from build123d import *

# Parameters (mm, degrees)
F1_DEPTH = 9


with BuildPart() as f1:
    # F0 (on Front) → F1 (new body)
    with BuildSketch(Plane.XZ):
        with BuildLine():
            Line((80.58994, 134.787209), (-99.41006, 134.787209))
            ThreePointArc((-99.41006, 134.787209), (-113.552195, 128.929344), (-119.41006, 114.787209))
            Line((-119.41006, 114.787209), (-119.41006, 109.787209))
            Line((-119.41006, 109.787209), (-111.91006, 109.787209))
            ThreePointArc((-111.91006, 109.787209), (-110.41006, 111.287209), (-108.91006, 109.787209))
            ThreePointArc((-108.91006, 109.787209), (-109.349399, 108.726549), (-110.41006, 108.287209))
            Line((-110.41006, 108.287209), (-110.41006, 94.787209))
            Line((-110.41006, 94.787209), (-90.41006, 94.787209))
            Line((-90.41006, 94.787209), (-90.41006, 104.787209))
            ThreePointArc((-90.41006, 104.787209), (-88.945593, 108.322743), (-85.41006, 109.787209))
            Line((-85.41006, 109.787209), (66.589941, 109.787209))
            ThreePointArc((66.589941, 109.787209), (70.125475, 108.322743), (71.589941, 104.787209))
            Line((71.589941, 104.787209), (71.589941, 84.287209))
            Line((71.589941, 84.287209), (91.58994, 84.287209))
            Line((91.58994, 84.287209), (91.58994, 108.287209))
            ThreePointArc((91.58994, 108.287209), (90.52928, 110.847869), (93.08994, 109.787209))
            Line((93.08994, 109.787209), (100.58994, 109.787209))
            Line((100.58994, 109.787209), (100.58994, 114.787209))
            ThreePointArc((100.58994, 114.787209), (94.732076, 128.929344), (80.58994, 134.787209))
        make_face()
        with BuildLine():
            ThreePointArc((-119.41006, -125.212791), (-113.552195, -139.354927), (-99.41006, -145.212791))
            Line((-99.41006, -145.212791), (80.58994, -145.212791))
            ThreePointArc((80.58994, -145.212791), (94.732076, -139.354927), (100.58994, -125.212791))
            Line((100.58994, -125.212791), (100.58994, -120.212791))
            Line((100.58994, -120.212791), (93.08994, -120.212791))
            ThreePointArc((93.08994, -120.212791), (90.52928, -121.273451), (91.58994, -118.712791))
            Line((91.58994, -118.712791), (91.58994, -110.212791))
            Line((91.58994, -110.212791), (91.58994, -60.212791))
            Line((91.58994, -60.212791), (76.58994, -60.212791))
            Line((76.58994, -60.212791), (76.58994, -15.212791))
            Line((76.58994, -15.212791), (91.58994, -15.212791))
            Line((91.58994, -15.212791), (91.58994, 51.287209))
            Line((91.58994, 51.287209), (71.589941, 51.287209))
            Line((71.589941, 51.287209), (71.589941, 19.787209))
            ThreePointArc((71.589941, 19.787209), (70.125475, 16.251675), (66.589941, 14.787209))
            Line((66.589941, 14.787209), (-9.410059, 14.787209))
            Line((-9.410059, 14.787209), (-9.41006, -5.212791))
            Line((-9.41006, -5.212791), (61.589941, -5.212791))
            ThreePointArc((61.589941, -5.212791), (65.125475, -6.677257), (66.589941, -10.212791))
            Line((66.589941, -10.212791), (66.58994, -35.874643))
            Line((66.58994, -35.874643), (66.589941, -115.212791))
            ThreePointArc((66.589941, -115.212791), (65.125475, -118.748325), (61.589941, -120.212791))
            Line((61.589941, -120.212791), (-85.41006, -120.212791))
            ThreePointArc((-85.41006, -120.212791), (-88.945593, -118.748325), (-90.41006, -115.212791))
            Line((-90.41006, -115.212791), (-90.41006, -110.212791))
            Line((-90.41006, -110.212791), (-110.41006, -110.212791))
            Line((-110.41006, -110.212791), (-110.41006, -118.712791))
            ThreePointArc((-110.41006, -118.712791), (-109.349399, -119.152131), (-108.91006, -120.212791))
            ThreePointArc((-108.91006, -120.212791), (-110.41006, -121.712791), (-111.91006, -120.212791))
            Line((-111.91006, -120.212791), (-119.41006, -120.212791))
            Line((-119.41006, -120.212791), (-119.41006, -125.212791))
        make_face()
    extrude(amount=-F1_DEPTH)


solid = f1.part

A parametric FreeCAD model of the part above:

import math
import FreeCAD as App
import Part
import Sketcher
Q = App.Units.Quantity

doc = App.newDocument("Part")
body = doc.addObject("PartDesign::Body", "Body")
body.AllowCompound = True

sketch1 = doc.addObject("Sketcher::SketchObject", "Sketch")
body.addObject(sketch1)
sketch1.AttachmentSupport = (doc.XZ_Plane, [""])
sketch1.MapMode = "FlatFace"
sketch1.addGeometry([
    Part.LineSegment(App.Vector(80.6, 134.8, 0), App.Vector(-99.4, 134.8, 0)),
    Part.ArcOfCircle(Part.Circle(App.Vector(-99.4, 114.8, 0), App.Vector(0, 0, 1), 20), math.radians(90), math.radians(180)),
    Part.LineSegment(App.Vector(-119.4, 114.8, 0), App.Vector(-119.4, 109.8, 0)),
    Part.LineSegment(App.Vector(-119.4, 109.8, 0), App.Vector(-111.9, 109.8, 0)),
    Part.ArcOfCircle(Part.Circle(App.Vector(-110.4, 109.8, 0), App.Vector(0, 0, 1), 1.5), math.radians(0), math.radians(180)),
    Part.ArcOfCircle(Part.Circle(App.Vector(-110.4, 109.8, 0), App.Vector(0, 0, 1), 1.5), math.radians(-90), math.radians(0)),
    Part.LineSegment(App.Vector(-110.4, 108.3, 0), App.Vector(-110.4, 94.8, 0)),
    Part.LineSegment(App.Vector(-110.4, 94.8, 0), App.Vector(-90.4, 94.8, 0)),
    Part.LineSegment(App.Vector(-90.4, 94.8, 0), App.Vector(-90.4, 104.8, 0)),
    Part.ArcOfCircle(Part.Circle(App.Vector(-85.4, 104.8, 0), App.Vector(0, 0, 1), 5), math.radians(90), math.radians(180)),
    Part.LineSegment(App.Vector(-85.4, 109.8, 0), App.Vector(66.6, 109.8, 0)),
    Part.ArcOfCircle(Part.Circle(App.Vector(66.6, 104.8, 0), App.Vector(0, 0, 1), 5), math.radians(0), math.radians(90)),
    Part.LineSegment(App.Vector(71.6, 104.8, 0), App.Vector(71.6, 84.3, 0)),
    Part.LineSegment(App.Vector(71.6, 84.3, 0), App.Vector(91.6, 84.3, 0)),
    Part.LineSegment(App.Vector(91.6, 84.3, 0), App.Vector(91.6, 108.3, 0)),
    Part.ArcOfCircle(Part.Circle(App.Vector(91.6, 109.8, 0), App.Vector(0, 0, 1), 1.5), math.radians(0), math.radians(270)),
    Part.LineSegment(App.Vector(93.1, 109.8, 0), App.Vector(100.6, 109.8, 0)),
    Part.LineSegment(App.Vector(100.6, 109.8, 0), App.Vector(100.6, 114.8, 0)),
    Part.ArcOfCircle(Part.Circle(App.Vector(80.6, 114.8, 0), App.Vector(0, 0, 1), 20), math.radians(0), math.radians(90)),
    Part.ArcOfCircle(Part.Circle(App.Vector(-99.4, -125.2, 0), App.Vector(0, 0, 1), 20), math.radians(-180), math.radians(-90)),
    Part.LineSegment(App.Vector(-99.4, -145.2, 0), App.Vector(80.6, -145.2, 0)),
    Part.ArcOfCircle(Part.Circle(App.Vector(80.6, -125.2, 0), App.Vector(0, 0, 1), 20), math.radians(-90), math.radians(0)),
    Part.LineSegment(App.Vector(100.6, -125.2, 0), App.Vector(100.6, -120.2, 0)),
    Part.LineSegment(App.Vector(100.6, -120.2, 0), App.Vector(93.1, -120.2, 0)),
    Part.ArcOfCircle(Part.Circle(App.Vector(91.6, -120.2, 0), App.Vector(0, 0, 1), 1.5), math.radians(90), math.radians(360)),
    Part.LineSegment(App.Vector(91.6, -118.7, 0), App.Vector(91.6, -60.2, 0)),
    Part.LineSegment(App.Vector(91.6, -60.2, 0), App.Vector(76.6, -60.2, 0)),
    Part.LineSegment(App.Vector(76.6, -60.2, 0), App.Vector(76.6, -15.2, 0)),
    Part.LineSegment(App.Vector(76.6, -15.2, 0), App.Vector(91.6, -15.2, 0)),
    Part.LineSegment(App.Vector(91.6, -15.2, 0), App.Vector(91.6, 51.3, 0)),
    Part.LineSegment(App.Vector(91.6, 51.3, 0), App.Vector(71.6, 51.3, 0)),
    Part.LineSegment(App.Vector(71.6, 51.3, 0), App.Vector(71.6, 19.8, 0)),
    Part.ArcOfCircle(Part.Circle(App.Vector(66.6, 19.8, 0), App.Vector(0, 0, 1), 5), math.radians(-90), math.radians(0)),
    Part.LineSegment(App.Vector(66.6, 14.8, 0), App.Vector(-9.4, 14.8, 0)),
    Part.LineSegment(App.Vector(-9.4, 14.8, 0), App.Vector(-9.4, -5.2, 0)),
    Part.LineSegment(App.Vector(-9.4, -5.2, 0), App.Vector(61.6, -5.2, 0)),
    Part.ArcOfCircle(Part.Circle(App.Vector(61.6, -10.2, 0), App.Vector(0, 0, 1), 5), math.radians(0), math.radians(90)),
    Part.LineSegment(App.Vector(66.6, -10.2, 0), App.Vector(66.6, -35.9, 0)),
    Part.LineSegment(App.Vector(66.6, -35.9, 0), App.Vector(66.6, -115.2, 0)),
    Part.ArcOfCircle(Part.Circle(App.Vector(61.6, -115.2, 0), App.Vector(0, 0, 1), 5), math.radians(-90), math.radians(0)),
    Part.LineSegment(App.Vector(61.6, -120.2, 0), App.Vector(-85.4, -120.2, 0)),
    Part.ArcOfCircle(Part.Circle(App.Vector(-85.4, -115.2, 0), App.Vector(0, 0, 1), 5), math.radians(-180), math.radians(-90)),
    Part.LineSegment(App.Vector(-90.4, -115.2, 0), App.Vector(-90.4, -110.2, 0)),
    Part.LineSegment(App.Vector(-90.4, -110.2, 0), App.Vector(-110.4, -110.2, 0)),
    Part.LineSegment(App.Vector(-110.4, -110.2, 0), App.Vector(-110.4, -118.7, 0)),
    Part.ArcOfCircle(Part.Circle(App.Vector(-110.4, -120.2, 0), App.Vector(0, 0, 1), 1.5), math.radians(0), math.radians(90)),
    Part.ArcOfCircle(Part.Circle(App.Vector(-110.4, -120.2, 0), App.Vector(0, 0, 1), 1.5), math.radians(180), math.radians(360)),
    Part.LineSegment(App.Vector(-111.9, -120.2, 0), App.Vector(-119.4, -120.2, 0)),
    Part.LineSegment(App.Vector(-119.4, -120.2, 0), App.Vector(-119.4, -125.2, 0)),
], False)
sketch1.addConstraint([
    Sketcher.Constraint("Tangent", 0, 2, 1, 1),
    Sketcher.Constraint("Tangent", 1, 2, 2, 1),
    Sketcher.Constraint("Coincident", 2, 2, 3, 1),
    Sketcher.Constraint("Coincident", 3, 2, 4, 2),
    Sketcher.Constraint("Tangent", 4, 1, 5, 2),
    Sketcher.Constraint("Coincident", 5, 1, 6, 1),
    Sketcher.Constraint("Coincident", 6, 2, 7, 1),
    Sketcher.Constraint("Coincident", 7, 2, 8, 1),
    Sketcher.Constraint("Tangent", 8, 2, 9, 2),
    Sketcher.Constraint("Tangent", 9, 1, 10, 1),
    Sketcher.Constraint("Tangent", 10, 2, 11, 2),
    Sketcher.Constraint("Tangent", 11, 1, 12, 1),
    Sketcher.Constraint("Coincident", 12, 2, 13, 1),
    Sketcher.Constraint("Coincident", 13, 2, 14, 1),
    Sketcher.Constraint("Coincident", 14, 2, 15, 2),
    Sketcher.Constraint("Coincident", 15, 1, 16, 1),
    Sketcher.Constraint("Coincident", 16, 2, 17, 1),
    Sketcher.Constraint("Tangent", 17, 2, 18, 1),
    Sketcher.Constraint("Tangent", 18, 2, 0, 1),
    Sketcher.Constraint("Tangent", 19, 2, 20, 1),
    Sketcher.Constraint("Tangent", 20, 2, 21, 1),
    Sketcher.Constraint("Tangent", 21, 2, 22, 1),
    Sketcher.Constraint("Coincident", 22, 2, 23, 1),
    Sketcher.Constraint("Coincident", 23, 2, 24, 2),
    Sketcher.Constraint("Coincident", 24, 1, 25, 1),
    Sketcher.Constraint("Coincident", 25, 2, 26, 1),
    Sketcher.Constraint("Coincident", 26, 2, 27, 1),
    Sketcher.Constraint("Coincident", 27, 2, 28, 1),
    Sketcher.Constraint("Coincident", 28, 2, 29, 1),
    Sketcher.Constraint("Coincident", 29, 2, 30, 1),
    Sketcher.Constraint("Coincident", 30, 2, 31, 1),
    Sketcher.Constraint("Tangent", 31, 2, 32, 2),
    Sketcher.Constraint("Tangent", 32, 1, 33, 1),
    Sketcher.Constraint("Coincident", 33, 2, 34, 1),
    Sketcher.Constraint("Coincident", 34, 2, 35, 1),
    Sketcher.Constraint("Tangent", 35, 2, 36, 2),
    Sketcher.Constraint("Tangent", 36, 1, 37, 1),
    Sketcher.Constraint("Coincident", 37, 2, 38, 1),
    Sketcher.Constraint("Tangent", 38, 2, 39, 2),
    Sketcher.Constraint("Tangent", 39, 1, 40, 1),
    Sketcher.Constraint("Tangent", 40, 2, 41, 2),
    Sketcher.Constraint("Tangent", 41, 1, 42, 1),
    Sketcher.Constraint("Coincident", 42, 2, 43, 1),
    Sketcher.Constraint("Coincident", 43, 2, 44, 1),
    Sketcher.Constraint("Coincident", 44, 2, 45, 2),
    Sketcher.Constraint("Tangent", 45, 1, 46, 2),
    Sketcher.Constraint("Coincident", 46, 1, 47, 1),
    Sketcher.Constraint("Coincident", 47, 2, 48, 1),
    Sketcher.Constraint("Tangent", 48, 2, 19, 1),
    Sketcher.Constraint("Horizontal", 0),
    Sketcher.Constraint("Vertical", 2),
    Sketcher.Constraint("Horizontal", 3),
    Sketcher.Constraint("Vertical", 6),
    Sketcher.Constraint("Horizontal", 7),
    Sketcher.Constraint("Vertical", 8),
    Sketcher.Constraint("Horizontal", 10),
    Sketcher.Constraint("Vertical", 12),
    Sketcher.Constraint("Horizontal", 13),
    Sketcher.Constraint("Vertical", 14),
    Sketcher.Constraint("Horizontal", 16),
    Sketcher.Constraint("Vertical", 17),
    Sketcher.Constraint("Horizontal", 20),
    Sketcher.Constraint("Vertical", 22),
    Sketcher.Constraint("Horizontal", 23),
    Sketcher.Constraint("Vertical", 25),
    Sketcher.Constraint("Horizontal", 26),
    Sketcher.Constraint("Vertical", 27),
    Sketcher.Constraint("Horizontal", 28),
    Sketcher.Constraint("Vertical", 29),
    Sketcher.Constraint("Horizontal", 30),
    Sketcher.Constraint("Vertical", 31),
    Sketcher.Constraint("Horizontal", 33),
    Sketcher.Constraint("Vertical", 34),
    Sketcher.Constraint("Horizontal", 35),
    Sketcher.Constraint("Vertical", 37),
    Sketcher.Constraint("Vertical", 38),
    Sketcher.Constraint("Horizontal", 40),
    Sketcher.Constraint("Vertical", 42),
    Sketcher.Constraint("Horizontal", 43),
    Sketcher.Constraint("Vertical", 44),
    Sketcher.Constraint("Horizontal", 47),
    Sketcher.Constraint("Vertical", 48),
    Sketcher.Constraint("Equal", 4, 5),
    Sketcher.Constraint("Equal", 9, 11),
    Sketcher.Constraint("Equal", 5, 15),
    Sketcher.Constraint("Equal", 1, 18),
    Sketcher.Constraint("Equal", 18, 19),
    Sketcher.Constraint("Equal", 19, 21),
    Sketcher.Constraint("Equal", 15, 24),
    Sketcher.Constraint("Equal", 11, 32),
    Sketcher.Constraint("Equal", 32, 36),
    Sketcher.Constraint("Equal", 36, 39),
    Sketcher.Constraint("Equal", 39, 41),
    Sketcher.Constraint("Equal", 24, 45),
    Sketcher.Constraint("Equal", 45, 46),
    Sketcher.Constraint("Horizontal", 5, 3, 15, 3),
    Sketcher.Constraint("Horizontal", 24, 3, 45, 3),
    Sketcher.Constraint("Horizontal", 15, 3, 2, 2),
    Sketcher.Constraint("Horizontal", 3, 2, 4, 1),
    Sketcher.Constraint("Horizontal", 4, 1, 9, 1),
    Sketcher.Constraint("Horizontal", 10, 2, 15, 1),
    Sketcher.Constraint("Horizontal", 46, 3, 22, 2),
    Sketcher.Constraint("Horizontal", 23, 2, 39, 1),
    Sketcher.Constraint("Horizontal", 40, 2, 45, 1),
    Sketcher.Constraint("Horizontal", 45, 1, 46, 1),
    Sketcher.Constraint("Vertical", 1, 3, 19, 3),
    Sketcher.Constraint("Vertical", 18, 3, 21, 3),
    Sketcher.Constraint("Vertical", 15, 3, 24, 3),
    Sketcher.Constraint("Vertical", 11, 3, 32, 3),
    Sketcher.Constraint("Vertical", 9, 3, 41, 3),
    Sketcher.Constraint("Vertical", 5, 3, 45, 3),
    Sketcher.Constraint("Vertical", 46, 3, 5, 1),
    Sketcher.Constraint("Vertical", 24, 3, 13, 2),
    Sketcher.Constraint("Vertical", 14, 2, 24, 1),
    Sketcher.Constraint("Vertical", 25, 2, 28, 2),
    Sketcher.Constraint("Vertical", 32, 1, 36, 1),
    Sketcher.Constraint("Vertical", 6, 2, 43, 2),
    Sketcher.Constraint("Equal", 7, 13),
    Sketcher.Constraint("Equal", 3, 16),
    Sketcher.Constraint("Equal", 17, 22),
    Sketcher.Constraint("Equal", 43, 34),
    Sketcher.Constraint("Equal", 22, 42),
    Sketcher.Constraint("Radius", 9, Q("5.000001 mm")),
    Sketcher.Constraint("Radius", 18, Q("20 mm")),
    Sketcher.Constraint("Radius", 4, Q("1.5 mm")),
    Sketcher.Constraint("DistanceX", 0, 2, 0, 1, Q("180 mm")),
    Sketcher.Constraint("DistanceX", 7, 1, 7, 2, Q("20 mm")),
    Sketcher.Constraint("DistanceX", 10, 1, 10, 2, Q("152.000001 mm")),
    Sketcher.Constraint("DistanceX", 26, 2, 26, 1, Q("15 mm")),
    Sketcher.Constraint("DistanceX", 33, 2, 33, 1, Q("76 mm")),
    Sketcher.Constraint("DistanceY", 2, 2, 2, 1, Q("5 mm")),
    Sketcher.Constraint("DistanceY", 8, 1, 8, 2, Q("10 mm")),
    Sketcher.Constraint("DistanceY", 14, 1, 14, 2, Q("24 mm")),
    Sketcher.Constraint("DistanceY", 27, 1, 27, 2, Q("45 mm")),
    Sketcher.Constraint("DistanceY", 25, 1, 25, 2, Q("58.5 mm")),
    Sketcher.Constraint("DistanceY", 29, 1, 29, 2, Q("66.5 mm")),
    Sketcher.Constraint("DistanceY", 31, 2, 31, 1, Q("31.5 mm")),
    Sketcher.Constraint("DistanceY", 37, 2, 37, 1, Q("25.661852 mm")),
    Sketcher.Constraint("DistanceX", 4, 3, -1, 1, Q("110.41006 mm")),
    Sketcher.Constraint("DistanceY", -1, 1, 4, 3, Q("109.787209 mm")),
    Sketcher.Constraint("DistanceY", 19, 3, -1, 1, Q("125.212791 mm")),
])
pad1 = doc.addObject("PartDesign::Pad", "Pad")
body.addObject(pad1)
pad1.Profile = sketch1
pad1.Length = 9
pad1.Reversed = True

doc.recompute()
